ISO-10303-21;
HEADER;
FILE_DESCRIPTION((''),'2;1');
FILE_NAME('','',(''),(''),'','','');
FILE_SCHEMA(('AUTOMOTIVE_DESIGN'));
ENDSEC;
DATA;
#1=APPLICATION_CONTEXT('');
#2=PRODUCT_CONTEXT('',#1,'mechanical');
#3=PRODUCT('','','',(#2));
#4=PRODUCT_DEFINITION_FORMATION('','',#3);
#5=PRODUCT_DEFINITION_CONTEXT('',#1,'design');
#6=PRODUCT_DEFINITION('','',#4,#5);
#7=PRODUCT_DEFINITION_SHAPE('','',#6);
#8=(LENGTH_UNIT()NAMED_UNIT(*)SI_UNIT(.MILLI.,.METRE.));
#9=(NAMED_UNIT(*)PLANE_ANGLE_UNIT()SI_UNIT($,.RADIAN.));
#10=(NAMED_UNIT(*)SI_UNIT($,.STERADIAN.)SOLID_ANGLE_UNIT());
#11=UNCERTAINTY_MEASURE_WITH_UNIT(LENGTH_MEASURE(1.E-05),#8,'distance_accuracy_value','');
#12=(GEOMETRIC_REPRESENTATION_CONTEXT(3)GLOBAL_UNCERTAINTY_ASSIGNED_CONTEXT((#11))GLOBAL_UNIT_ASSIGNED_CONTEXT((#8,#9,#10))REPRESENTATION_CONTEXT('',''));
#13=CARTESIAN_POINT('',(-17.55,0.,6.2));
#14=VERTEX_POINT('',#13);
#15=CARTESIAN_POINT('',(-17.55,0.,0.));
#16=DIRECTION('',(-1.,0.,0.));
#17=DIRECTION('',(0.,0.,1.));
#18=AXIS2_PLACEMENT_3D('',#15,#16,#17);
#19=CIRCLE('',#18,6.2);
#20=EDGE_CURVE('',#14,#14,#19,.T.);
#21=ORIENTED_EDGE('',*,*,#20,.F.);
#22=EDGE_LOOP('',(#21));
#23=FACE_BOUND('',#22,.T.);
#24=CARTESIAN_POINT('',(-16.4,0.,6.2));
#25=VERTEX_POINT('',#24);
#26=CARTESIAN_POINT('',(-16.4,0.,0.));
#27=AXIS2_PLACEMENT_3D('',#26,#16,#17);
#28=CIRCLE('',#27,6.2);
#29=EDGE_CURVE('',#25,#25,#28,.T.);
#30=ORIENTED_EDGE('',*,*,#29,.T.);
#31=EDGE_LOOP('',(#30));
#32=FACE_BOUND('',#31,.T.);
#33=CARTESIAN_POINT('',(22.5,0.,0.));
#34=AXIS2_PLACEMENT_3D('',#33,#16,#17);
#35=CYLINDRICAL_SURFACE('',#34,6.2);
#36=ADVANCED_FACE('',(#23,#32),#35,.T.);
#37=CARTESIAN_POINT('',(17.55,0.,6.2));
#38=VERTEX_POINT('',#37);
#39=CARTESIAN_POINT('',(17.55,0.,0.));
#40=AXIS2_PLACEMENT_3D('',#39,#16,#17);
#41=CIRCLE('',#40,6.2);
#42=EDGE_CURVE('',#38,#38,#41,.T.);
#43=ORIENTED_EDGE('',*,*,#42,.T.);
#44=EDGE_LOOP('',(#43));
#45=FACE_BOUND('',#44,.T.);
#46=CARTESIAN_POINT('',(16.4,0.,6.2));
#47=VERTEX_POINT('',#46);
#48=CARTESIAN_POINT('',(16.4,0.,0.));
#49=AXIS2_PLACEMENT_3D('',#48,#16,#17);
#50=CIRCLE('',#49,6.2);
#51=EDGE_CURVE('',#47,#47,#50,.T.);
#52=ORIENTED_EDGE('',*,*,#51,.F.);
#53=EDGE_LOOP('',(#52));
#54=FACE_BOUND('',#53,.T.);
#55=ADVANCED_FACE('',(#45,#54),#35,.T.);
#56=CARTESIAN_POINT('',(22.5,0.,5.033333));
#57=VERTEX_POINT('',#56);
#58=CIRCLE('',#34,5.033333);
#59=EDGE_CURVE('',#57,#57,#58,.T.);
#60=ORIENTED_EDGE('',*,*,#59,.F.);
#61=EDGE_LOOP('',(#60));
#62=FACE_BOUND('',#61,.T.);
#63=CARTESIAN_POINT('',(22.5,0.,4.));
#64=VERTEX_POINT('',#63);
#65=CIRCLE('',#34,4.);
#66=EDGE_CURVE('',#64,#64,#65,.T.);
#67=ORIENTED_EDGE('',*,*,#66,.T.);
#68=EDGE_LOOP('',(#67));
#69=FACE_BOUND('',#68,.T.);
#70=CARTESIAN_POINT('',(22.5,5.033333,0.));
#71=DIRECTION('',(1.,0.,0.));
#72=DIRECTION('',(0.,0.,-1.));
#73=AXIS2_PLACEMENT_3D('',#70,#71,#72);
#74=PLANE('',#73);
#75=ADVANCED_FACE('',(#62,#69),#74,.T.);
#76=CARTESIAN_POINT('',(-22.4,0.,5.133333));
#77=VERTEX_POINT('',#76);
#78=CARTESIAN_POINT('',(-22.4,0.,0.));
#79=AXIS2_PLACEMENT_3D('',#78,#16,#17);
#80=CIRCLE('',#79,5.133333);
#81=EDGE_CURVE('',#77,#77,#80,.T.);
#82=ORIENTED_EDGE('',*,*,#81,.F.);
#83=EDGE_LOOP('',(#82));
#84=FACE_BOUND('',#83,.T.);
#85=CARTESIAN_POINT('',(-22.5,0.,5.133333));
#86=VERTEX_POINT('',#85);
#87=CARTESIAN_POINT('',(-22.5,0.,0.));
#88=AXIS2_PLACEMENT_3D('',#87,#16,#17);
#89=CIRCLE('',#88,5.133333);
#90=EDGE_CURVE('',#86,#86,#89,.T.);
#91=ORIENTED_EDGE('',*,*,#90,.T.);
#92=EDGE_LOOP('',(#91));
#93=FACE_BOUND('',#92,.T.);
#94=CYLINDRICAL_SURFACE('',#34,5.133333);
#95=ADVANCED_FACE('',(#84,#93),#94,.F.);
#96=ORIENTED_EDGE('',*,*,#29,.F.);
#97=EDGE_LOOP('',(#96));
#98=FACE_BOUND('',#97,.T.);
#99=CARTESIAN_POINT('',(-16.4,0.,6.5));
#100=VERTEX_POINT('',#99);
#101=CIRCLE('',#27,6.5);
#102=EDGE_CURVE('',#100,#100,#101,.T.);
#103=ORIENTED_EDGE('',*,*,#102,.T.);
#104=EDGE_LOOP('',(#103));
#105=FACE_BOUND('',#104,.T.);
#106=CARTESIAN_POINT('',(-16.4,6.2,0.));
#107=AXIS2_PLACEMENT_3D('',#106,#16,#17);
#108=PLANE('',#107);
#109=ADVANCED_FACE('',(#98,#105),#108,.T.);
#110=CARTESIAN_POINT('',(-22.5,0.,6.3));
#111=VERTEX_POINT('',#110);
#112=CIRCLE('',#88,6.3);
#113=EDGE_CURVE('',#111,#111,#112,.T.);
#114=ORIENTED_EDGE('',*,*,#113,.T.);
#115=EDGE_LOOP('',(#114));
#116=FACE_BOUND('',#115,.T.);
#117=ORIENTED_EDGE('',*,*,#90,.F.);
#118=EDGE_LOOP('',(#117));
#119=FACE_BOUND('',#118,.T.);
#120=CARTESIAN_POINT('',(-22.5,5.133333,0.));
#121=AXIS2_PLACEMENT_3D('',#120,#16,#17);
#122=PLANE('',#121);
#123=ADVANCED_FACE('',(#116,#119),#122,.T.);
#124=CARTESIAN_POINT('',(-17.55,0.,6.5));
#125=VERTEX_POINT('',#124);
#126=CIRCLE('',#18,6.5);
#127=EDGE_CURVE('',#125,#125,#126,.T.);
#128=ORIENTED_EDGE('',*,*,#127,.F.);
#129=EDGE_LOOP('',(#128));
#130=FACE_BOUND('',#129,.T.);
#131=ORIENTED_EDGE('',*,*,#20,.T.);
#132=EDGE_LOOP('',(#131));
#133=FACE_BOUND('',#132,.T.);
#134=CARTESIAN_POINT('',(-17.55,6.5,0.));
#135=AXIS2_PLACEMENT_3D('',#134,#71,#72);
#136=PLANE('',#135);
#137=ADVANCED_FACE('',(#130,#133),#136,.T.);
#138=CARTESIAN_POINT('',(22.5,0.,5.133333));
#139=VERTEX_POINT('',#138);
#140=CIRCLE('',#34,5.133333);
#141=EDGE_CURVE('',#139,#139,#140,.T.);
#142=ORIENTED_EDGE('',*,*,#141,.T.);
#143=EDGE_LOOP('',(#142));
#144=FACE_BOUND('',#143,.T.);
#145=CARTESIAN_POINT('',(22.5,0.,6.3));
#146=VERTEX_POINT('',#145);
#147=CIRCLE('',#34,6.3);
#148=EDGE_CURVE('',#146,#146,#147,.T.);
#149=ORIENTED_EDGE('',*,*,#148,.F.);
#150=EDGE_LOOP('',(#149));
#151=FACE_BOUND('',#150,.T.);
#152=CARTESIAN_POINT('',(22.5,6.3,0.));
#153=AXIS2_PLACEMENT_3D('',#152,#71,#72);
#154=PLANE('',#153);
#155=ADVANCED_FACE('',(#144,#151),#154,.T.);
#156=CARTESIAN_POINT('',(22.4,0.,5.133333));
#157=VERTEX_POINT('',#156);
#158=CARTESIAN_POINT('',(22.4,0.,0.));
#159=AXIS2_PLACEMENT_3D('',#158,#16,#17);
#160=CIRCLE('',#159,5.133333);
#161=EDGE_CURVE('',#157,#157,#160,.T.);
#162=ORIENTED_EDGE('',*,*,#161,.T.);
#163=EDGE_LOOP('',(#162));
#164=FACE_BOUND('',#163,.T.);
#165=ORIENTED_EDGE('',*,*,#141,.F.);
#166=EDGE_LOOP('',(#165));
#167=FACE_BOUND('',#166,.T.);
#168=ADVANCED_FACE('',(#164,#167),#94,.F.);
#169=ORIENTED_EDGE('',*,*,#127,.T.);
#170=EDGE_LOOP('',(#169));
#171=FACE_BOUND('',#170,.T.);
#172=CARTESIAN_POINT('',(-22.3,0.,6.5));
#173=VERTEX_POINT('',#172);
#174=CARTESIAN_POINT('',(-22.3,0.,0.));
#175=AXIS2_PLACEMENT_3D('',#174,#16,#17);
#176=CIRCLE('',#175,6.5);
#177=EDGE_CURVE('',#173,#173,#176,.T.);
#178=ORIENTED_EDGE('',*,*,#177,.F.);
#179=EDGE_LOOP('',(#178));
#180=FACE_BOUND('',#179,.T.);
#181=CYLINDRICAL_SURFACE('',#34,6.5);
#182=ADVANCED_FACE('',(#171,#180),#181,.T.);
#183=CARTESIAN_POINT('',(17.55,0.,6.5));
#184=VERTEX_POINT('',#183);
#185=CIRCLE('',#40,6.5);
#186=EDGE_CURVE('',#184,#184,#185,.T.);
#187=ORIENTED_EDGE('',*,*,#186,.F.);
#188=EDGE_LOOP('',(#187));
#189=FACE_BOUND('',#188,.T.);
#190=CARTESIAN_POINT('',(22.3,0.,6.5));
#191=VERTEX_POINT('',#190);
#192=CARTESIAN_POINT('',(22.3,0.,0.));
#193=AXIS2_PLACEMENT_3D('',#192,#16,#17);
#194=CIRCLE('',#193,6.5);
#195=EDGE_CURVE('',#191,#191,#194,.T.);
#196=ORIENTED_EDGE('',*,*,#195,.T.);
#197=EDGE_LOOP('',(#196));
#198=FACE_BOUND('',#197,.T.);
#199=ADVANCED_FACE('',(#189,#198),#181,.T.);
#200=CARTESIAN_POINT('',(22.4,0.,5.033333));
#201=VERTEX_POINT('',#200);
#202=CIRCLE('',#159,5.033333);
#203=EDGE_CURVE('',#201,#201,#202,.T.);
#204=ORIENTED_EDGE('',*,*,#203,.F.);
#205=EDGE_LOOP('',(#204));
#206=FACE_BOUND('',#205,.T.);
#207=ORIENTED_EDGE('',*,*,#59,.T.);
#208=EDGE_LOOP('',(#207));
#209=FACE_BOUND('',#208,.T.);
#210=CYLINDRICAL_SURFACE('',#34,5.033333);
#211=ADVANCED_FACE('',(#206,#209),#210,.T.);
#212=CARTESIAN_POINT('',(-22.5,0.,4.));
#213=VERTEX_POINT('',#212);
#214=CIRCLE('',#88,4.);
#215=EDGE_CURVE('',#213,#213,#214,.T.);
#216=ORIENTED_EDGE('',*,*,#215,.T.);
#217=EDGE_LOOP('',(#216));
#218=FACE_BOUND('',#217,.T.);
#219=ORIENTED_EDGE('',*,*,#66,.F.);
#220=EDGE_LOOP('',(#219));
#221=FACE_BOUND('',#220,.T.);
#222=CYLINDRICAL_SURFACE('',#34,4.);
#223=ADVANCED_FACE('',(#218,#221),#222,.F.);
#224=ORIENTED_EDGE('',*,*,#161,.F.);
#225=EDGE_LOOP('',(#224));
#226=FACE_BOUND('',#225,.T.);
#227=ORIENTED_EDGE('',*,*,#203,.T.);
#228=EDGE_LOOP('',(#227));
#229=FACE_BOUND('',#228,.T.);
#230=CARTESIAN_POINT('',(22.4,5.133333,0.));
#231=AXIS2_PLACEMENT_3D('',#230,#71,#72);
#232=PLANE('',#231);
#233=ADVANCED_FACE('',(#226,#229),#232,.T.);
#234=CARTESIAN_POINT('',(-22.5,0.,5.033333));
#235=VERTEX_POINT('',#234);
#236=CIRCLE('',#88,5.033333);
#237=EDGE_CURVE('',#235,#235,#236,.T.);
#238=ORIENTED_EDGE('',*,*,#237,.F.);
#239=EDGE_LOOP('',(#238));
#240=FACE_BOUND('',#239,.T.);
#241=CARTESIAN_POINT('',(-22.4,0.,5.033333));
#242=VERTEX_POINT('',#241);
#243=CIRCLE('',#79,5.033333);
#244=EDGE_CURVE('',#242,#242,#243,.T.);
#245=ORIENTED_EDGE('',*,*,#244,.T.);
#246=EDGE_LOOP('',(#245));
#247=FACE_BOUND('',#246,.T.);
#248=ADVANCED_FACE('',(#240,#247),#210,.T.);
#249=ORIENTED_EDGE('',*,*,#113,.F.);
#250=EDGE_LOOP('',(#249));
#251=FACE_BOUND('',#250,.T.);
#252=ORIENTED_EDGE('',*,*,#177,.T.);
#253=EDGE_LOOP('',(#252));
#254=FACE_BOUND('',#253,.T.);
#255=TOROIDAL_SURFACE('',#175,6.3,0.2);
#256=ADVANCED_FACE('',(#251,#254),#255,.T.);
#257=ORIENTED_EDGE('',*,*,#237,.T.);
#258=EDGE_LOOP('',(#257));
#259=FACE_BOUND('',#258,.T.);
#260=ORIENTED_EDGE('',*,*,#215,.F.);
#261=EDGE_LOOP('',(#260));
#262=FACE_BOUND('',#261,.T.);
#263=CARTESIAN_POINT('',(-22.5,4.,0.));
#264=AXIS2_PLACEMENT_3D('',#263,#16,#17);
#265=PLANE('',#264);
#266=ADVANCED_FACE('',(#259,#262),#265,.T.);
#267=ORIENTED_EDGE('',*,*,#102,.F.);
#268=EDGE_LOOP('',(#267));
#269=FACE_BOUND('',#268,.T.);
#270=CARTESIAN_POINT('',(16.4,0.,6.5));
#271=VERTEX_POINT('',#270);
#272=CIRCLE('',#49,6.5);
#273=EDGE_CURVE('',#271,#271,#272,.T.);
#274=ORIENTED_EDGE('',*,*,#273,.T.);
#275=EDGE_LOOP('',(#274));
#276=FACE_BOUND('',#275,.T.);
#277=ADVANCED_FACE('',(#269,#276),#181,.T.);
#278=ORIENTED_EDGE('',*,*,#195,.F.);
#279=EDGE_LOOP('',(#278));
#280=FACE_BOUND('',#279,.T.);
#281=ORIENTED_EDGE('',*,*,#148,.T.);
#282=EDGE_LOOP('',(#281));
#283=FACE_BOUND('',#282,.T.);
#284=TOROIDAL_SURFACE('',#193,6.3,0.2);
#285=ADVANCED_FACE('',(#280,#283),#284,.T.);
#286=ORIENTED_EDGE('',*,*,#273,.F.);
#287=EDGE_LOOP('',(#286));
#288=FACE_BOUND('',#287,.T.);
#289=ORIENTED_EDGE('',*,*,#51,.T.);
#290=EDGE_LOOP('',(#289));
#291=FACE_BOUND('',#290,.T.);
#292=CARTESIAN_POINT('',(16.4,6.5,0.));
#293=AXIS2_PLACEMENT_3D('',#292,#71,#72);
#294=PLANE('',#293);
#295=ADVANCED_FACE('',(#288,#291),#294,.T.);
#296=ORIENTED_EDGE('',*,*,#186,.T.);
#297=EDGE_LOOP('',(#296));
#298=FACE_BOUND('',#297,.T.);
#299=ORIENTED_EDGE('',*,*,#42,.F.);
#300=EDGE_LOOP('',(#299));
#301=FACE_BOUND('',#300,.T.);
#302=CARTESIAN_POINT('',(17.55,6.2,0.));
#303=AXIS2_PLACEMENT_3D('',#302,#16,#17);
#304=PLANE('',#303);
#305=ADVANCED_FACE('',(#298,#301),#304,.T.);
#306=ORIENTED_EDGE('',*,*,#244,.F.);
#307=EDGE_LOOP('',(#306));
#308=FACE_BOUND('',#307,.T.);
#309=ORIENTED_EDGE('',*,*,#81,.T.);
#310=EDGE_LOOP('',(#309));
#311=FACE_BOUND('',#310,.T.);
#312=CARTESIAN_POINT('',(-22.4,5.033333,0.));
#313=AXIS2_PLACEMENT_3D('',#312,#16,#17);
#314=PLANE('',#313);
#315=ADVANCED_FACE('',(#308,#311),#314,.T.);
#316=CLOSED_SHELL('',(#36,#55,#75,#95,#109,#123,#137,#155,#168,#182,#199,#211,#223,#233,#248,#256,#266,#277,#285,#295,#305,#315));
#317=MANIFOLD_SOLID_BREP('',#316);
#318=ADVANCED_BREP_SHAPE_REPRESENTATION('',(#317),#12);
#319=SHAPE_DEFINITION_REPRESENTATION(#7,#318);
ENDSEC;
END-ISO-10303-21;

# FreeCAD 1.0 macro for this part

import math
import FreeCAD as App
import Part
import Sketcher
from FreeCAD import Vector

doc = App.newDocument("Part")
body = doc.addObject("PartDesign::Body", "Body")

# Sketch on XY plane
sketch1 = body.newObject("Sketcher::SketchObject", "Sketch")
sketch1.AttachmentSupport = (doc.getObject("XY_Plane"), [""])
sketch1.MapMode = "FlatFace"
sketch1.addGeometry(Part.LineSegment(Vector(22.4, 5.033333, 0), Vector(22.5, 5.033333, 0)), False)
sketch1.addGeometry(Part.LineSegment(Vector(22.5, 5.033333, 0), Vector(22.5, 4, 0)), False)
sketch1.addGeometry(Part.LineSegment(Vector(22.5, 4, 0), Vector(-22.5, 4, 0)), False)
sketch1.addGeometry(Part.LineSegment(Vector(-22.5, 4, 0), Vector(-22.5, 5.033333, 0)), False)
sketch1.addGeometry(Part.LineSegment(Vector(-22.5, 5.033333, 0), Vector(-22.4, 5.033333, 0)), False)
sketch1.addGeometry(Part.LineSegment(Vector(-22.4, 5.033333, 0), Vector(-22.4, 5.133333, 0)), False)
sketch1.addGeometry(Part.LineSegment(Vector(-22.4, 5.133333, 0), Vector(-22.5, 5.133333, 0)), False)
sketch1.addGeometry(Part.LineSegment(Vector(-22.5, 5.133333, 0), Vector(-22.5, 6.3, 0)), False)
sketch1.addGeometry(Part.ArcOfCircle(Part.Circle(Vector(-22.3, 6.3, 0), Vector(0, 0, 1), 0.2), math.radians(90), math.radians(180)), False)
sketch1.addGeometry(Part.LineSegment(Vector(-22.3, 6.5, 0), Vector(-17.55, 6.5, 0)), False)
sketch1.addGeometry(Part.LineSegment(Vector(-17.55, 6.5, 0), Vector(-17.55, 6.2, 0)), False)
sketch1.addGeometry(Part.LineSegment(Vector(-17.55, 6.2, 0), Vector(-16.4, 6.2, 0)), False)
sketch1.addGeometry(Part.LineSegment(Vector(-16.4, 6.2, 0), Vector(-16.4, 6.5, 0)), False)
sketch1.addGeometry(Part.LineSegment(Vector(-16.4, 6.5, 0), Vector(16.4, 6.5, 0)), False)
sketch1.addGeometry(Part.LineSegment(Vector(16.4, 6.5, 0), Vector(16.4, 6.2, 0)), False)
sketch1.addGeometry(Part.LineSegment(Vector(16.4, 6.2, 0), Vector(17.55, 6.2, 0)), False)
sketch1.addGeometry(Part.LineSegment(Vector(17.55, 6.2, 0), Vector(17.55, 6.5, 0)), False)
sketch1.addGeometry(Part.LineSegment(Vector(17.55, 6.5, 0), Vector(22.3, 6.5, 0)), False)
sketch1.addGeometry(Part.ArcOfCircle(Part.Circle(Vector(22.3, 6.3, 0), Vector(0, 0, 1), 0.2), math.radians(0), math.radians(90)), False)
sketch1.addGeometry(Part.LineSegment(Vector(22.5, 6.3, 0), Vector(22.5, 5.133333, 0)), False)
sketch1.addGeometry(Part.LineSegment(Vector(22.5, 5.133333, 0), Vector(22.4, 5.133333, 0)), False)
sketch1.addGeometry(Part.LineSegment(Vector(22.4, 5.133333, 0), Vector(22.4, 5.033333, 0)), False)
sketch1.addConstraint(Sketcher.Constraint("Coincident", 0, 2, 1, 1))
sketch1.addConstraint(Sketcher.Constraint("Coincident", 1, 2, 2, 1))
sketch1.addConstraint(Sketcher.Constraint("Coincident", 2, 2, 3, 1))
sketch1.addConstraint(Sketcher.Constraint("Coincident", 3, 2, 4, 1))
sketch1.addConstraint(Sketcher.Constraint("Coincident", 4, 2, 5, 1))
sketch1.addConstraint(Sketcher.Constraint("Coincident", 5, 2, 6, 1))
sketch1.addConstraint(Sketcher.Constraint("Coincident", 6, 2, 7, 1))
sketch1.addConstraint(Sketcher.Constraint("Tangent", 7, 2, 8, 2))
sketch1.addConstraint(Sketcher.Constraint("Tangent", 8, 1, 9, 1))
sketch1.addConstraint(Sketcher.Constraint("Coincident", 9, 2, 10, 1))
sketch1.addConstraint(Sketcher.Constraint("Coincident", 10, 2, 11, 1))
sketch1.addConstraint(Sketcher.Constraint("Coincident", 11, 2, 12, 1))
sketch1.addConstraint(Sketcher.Constraint("Coincident", 12, 2, 13, 1))
sketch1.addConstraint(Sketcher.Constraint("Coincident", 13, 2, 14, 1))
sketch1.addConstraint(Sketcher.Constraint("Coincident", 14, 2, 15, 1))
sketch1.addConstraint(Sketcher.Constraint("Coincident", 15, 2, 16, 1))
sketch1.addConstraint(Sketcher.Constraint("Coincident", 16, 2, 17, 1))
sketch1.addConstraint(Sketcher.Constraint("Tangent", 17, 2, 18, 2))
sketch1.addConstraint(Sketcher.Constraint("Tangent", 18, 1, 19, 1))
sketch1.addConstraint(Sketcher.Constraint("Coincident", 19, 2, 20, 1))
sketch1.addConstraint(Sketcher.Constraint("Coincident", 20, 2, 21, 1))
sketch1.addConstraint(Sketcher.Constraint("Coincident", 21, 2, 0, 1))
sketch1.addConstraint(Sketcher.Constraint("Horizontal", 0))
sketch1.addConstraint(Sketcher.Constraint("Vertical", 1))
sketch1.addConstraint(Sketcher.Constraint("Horizontal", 2))
sketch1.addConstraint(Sketcher.Constraint("Vertical", 3))
sketch1.addConstraint(Sketcher.Constraint("Horizontal", 4))
sketch1.addConstraint(Sketcher.Constraint("Vertical", 5))
sketch1.addConstraint(Sketcher.Constraint("Horizontal", 6))
sketch1.addConstraint(Sketcher.Constraint("Vertical", 7))
sketch1.addConstraint(Sketcher.Constraint("Horizontal", 9))
sketch1.addConstraint(Sketcher.Constraint("Vertical", 10))
sketch1.addConstraint(Sketcher.Constraint("Horizontal", 11))
sketch1.addConstraint(Sketcher.Constraint("Vertical", 12))
sketch1.addConstraint(Sketcher.Constraint("Horizontal", 13))
sketch1.addConstraint(Sketcher.Constraint("Vertical", 14))
sketch1.addConstraint(Sketcher.Constraint("Horizontal", 15))
sketch1.addConstraint(Sketcher.Constraint("Vertical", 16))
sketch1.addConstraint(Sketcher.Constraint("Horizontal", 17))
sketch1.addConstraint(Sketcher.Constraint("Vertical", 19))
sketch1.addConstraint(Sketcher.Constraint("Horizontal", 20))
sketch1.addConstraint(Sketcher.Constraint("Vertical", 21))
sketch1.addConstraint(Sketcher.Constraint("Equal", 8, 18))
sketch1.addConstraint(Sketcher.Constraint("Symmetric", 8, 3, 18, 3, -2))
sketch1.addConstraint(Sketcher.Constraint("Symmetric", 0, 2, 3, 2, -2))
sketch1.addConstraint(Sketcher.Constraint("Symmetric", 11, 2, 14, 2, -2))
sketch1.addConstraint(Sketcher.Constraint("Symmetric", 5, 2, 20, 2, -2))
sketch1.addConstraint(Sketcher.Constraint("Horizontal", 9, 2, 12, 2))
sketch1.addConstraint(Sketcher.Constraint("Vertical", 3, 2, 6, 2))
sketch1.addConstraint(Sketcher.Constraint("Equal", 11, 15))
sketch1.addConstraint(Sketcher.Constraint("Equal", 20, 5))
sketch1.addConstraint(Sketcher.Constraint("Radius", 8, 0.2))
sketch1.addConstraint(Sketcher.Constraint("DistanceX", 2, 2, 2, 1, 45.0))
sketch1.addConstraint(Sketcher.Constraint("DistanceX", 0, 1, 0, 2, 0.1))
sketch1.addConstraint(Sketcher.Constraint("DistanceX", 13, 1, 13, 2, 32.8))
sketch1.addConstraint(Sketcher.Constraint("DistanceY", 10, 2, 10, 1, 0.3))
sketch1.addConstraint(Sketcher.Constraint("DistanceY", -1, 1, 1, 2, 4.0))
sketch1.addConstraint(Sketcher.Constraint("DistanceX", 9, 1, 9, 2, 4.75))
sketch1.addConstraint(Sketcher.Constraint("DistanceY", -1, 1, 8, 3, 6.3))
sketch1.addConstraint(Sketcher.Constraint("DistanceY", 1, 2, 1, 1, 1.033333))
revolution = body.newObject("PartDesign::Revolution", "Revolution")
revolution.Profile = sketch1
revolution.ReferenceAxis = (sketch1, ["H_Axis"])
revolution.Angle = 360

doc.recompute()
